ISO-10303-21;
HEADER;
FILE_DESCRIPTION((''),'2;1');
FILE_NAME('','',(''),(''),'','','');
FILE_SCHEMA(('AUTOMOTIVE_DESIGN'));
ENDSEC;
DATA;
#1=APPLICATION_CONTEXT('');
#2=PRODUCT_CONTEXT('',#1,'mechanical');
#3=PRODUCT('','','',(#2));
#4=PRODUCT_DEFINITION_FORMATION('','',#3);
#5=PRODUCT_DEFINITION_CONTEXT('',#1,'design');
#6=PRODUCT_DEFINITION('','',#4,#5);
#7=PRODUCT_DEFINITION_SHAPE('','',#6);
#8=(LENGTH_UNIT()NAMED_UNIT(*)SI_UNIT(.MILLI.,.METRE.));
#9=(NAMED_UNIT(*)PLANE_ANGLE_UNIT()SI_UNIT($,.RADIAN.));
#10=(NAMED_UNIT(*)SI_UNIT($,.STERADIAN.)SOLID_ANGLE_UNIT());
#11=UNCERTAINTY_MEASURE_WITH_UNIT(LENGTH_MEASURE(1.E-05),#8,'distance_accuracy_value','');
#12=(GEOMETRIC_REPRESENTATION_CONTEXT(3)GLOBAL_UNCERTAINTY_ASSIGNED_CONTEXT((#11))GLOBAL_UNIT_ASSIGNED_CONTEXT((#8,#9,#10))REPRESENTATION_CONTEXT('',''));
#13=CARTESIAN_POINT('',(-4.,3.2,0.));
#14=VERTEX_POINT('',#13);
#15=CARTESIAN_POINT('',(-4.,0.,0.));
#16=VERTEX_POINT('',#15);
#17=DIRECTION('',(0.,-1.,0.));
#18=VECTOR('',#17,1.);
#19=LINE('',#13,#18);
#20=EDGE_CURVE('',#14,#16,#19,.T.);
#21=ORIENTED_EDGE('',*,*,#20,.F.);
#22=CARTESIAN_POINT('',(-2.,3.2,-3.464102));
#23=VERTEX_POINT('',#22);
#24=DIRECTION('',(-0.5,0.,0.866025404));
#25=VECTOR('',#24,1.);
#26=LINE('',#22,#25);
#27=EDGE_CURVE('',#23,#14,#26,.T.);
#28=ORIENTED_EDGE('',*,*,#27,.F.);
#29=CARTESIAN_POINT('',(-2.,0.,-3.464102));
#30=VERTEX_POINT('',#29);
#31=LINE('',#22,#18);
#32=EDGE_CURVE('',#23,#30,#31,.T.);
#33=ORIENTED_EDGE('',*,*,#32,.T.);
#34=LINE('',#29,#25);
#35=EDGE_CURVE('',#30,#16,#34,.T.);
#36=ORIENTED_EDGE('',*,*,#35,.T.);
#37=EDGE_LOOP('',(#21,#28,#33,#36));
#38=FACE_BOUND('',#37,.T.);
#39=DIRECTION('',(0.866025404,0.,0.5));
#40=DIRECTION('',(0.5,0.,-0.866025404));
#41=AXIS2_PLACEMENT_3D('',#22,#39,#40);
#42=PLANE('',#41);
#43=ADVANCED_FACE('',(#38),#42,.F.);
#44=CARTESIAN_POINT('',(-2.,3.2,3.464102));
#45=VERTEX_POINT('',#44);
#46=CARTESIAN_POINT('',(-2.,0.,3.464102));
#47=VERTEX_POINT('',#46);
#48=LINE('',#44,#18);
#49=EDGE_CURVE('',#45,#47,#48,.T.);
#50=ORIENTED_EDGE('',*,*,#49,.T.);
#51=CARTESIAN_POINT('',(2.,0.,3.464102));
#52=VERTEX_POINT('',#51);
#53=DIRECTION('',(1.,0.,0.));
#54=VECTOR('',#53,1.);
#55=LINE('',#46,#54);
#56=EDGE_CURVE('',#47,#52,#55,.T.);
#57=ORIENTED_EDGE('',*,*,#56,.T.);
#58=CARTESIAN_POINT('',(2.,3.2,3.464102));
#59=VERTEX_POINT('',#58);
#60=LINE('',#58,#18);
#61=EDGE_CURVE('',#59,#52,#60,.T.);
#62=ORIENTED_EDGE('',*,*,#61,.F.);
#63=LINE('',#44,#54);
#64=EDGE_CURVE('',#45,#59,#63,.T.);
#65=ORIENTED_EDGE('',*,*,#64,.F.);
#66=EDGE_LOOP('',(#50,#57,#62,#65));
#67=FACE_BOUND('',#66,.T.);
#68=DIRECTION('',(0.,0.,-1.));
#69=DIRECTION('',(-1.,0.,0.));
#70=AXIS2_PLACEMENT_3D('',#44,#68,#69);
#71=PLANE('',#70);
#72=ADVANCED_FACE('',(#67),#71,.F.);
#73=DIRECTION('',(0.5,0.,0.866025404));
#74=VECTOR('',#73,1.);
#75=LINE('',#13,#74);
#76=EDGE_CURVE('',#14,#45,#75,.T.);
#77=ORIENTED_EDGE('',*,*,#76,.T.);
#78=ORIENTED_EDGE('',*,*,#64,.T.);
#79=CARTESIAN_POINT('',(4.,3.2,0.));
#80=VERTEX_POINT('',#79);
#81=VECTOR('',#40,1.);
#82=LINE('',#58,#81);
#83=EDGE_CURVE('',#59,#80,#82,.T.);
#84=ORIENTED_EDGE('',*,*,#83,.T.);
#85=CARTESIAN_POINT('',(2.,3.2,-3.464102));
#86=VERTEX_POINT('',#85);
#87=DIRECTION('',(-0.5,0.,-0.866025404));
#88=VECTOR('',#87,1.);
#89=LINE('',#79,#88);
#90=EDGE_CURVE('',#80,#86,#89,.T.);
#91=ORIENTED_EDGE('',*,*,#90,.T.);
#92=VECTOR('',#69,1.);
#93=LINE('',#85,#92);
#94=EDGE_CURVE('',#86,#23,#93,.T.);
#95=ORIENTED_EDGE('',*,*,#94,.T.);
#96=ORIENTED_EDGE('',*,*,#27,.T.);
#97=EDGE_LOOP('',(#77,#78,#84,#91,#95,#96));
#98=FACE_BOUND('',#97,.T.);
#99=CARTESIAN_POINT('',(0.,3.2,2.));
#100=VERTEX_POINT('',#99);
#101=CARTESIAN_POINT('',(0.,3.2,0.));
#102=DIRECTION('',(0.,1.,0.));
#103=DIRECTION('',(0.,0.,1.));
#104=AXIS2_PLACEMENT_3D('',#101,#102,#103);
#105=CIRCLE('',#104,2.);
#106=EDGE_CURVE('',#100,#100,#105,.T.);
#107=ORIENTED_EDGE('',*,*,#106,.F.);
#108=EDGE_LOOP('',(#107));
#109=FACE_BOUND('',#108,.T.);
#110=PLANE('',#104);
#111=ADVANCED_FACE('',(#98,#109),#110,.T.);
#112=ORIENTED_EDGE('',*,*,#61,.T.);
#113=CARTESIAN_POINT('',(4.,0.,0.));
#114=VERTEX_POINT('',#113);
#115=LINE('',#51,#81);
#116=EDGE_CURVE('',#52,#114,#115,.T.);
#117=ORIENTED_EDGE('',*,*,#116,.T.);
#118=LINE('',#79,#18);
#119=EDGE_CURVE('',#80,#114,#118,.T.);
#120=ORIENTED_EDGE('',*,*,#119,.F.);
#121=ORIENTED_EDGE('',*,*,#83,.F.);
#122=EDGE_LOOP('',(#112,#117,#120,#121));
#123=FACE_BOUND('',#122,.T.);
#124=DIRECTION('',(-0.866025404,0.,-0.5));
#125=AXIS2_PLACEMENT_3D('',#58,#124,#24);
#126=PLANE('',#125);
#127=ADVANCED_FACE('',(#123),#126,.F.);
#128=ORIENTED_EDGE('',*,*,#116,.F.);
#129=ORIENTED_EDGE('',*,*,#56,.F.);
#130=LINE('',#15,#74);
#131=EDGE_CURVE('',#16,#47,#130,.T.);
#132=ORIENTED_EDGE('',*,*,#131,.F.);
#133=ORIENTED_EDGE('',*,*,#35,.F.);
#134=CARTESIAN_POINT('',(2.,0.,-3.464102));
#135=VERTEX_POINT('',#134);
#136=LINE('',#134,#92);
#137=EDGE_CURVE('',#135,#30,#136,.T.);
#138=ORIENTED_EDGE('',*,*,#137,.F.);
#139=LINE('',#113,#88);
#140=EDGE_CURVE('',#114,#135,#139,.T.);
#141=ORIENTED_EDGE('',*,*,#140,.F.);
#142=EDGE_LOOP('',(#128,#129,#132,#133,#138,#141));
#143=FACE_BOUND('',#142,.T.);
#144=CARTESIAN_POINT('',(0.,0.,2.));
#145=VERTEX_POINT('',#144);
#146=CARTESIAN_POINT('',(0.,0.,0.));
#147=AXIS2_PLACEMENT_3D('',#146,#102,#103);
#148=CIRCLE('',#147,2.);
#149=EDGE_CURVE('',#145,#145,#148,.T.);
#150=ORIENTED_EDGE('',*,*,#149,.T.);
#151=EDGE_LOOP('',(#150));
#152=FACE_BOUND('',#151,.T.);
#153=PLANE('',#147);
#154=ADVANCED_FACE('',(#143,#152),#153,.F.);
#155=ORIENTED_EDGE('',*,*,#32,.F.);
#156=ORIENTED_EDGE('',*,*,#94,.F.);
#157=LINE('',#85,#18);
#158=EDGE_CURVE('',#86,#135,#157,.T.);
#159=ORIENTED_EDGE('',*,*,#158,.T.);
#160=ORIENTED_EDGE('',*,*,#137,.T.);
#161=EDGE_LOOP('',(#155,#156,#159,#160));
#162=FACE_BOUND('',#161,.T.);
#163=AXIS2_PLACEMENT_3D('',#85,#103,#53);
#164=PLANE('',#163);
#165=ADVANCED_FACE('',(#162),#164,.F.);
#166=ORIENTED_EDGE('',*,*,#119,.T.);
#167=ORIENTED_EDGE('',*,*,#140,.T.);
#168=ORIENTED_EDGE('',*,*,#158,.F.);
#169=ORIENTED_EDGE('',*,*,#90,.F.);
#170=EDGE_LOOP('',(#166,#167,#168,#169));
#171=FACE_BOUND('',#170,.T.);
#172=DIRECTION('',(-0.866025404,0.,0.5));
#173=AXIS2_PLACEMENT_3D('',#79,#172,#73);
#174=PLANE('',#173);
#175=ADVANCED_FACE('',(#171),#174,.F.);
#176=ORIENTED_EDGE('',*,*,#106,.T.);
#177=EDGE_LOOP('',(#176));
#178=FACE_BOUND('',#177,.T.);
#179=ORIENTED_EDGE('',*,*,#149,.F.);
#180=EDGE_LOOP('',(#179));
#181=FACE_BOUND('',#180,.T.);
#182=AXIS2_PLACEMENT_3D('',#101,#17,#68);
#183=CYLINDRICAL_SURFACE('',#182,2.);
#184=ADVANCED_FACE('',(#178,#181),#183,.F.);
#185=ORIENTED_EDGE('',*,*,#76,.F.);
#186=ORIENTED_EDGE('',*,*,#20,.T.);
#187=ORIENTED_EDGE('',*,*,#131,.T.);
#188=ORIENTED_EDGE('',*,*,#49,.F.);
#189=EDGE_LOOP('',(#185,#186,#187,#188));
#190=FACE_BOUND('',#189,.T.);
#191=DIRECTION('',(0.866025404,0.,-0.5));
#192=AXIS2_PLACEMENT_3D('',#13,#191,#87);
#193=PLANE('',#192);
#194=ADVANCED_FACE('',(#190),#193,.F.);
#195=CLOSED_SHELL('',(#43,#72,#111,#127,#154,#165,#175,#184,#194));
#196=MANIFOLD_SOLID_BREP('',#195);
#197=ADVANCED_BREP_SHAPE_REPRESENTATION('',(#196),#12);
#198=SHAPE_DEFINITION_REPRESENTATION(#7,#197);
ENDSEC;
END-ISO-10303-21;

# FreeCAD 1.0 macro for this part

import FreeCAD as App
import Part
import Sketcher
from FreeCAD import Vector
Q = App.Units.Quantity

doc = App.newDocument("Part")
body = doc.addObject("PartDesign::Body", "Body")

sketch1 = doc.addObject("Sketcher::SketchObject", "Sketch")
body.addObject(sketch1)
sketch1.AttachmentSupport = (doc.XZ_Plane, [""])
sketch1.MapMode = "FlatFace"
sketch1.addGeometry(Part.LineSegment(Vector(4, 0, 0), Vector(2, -3.464102, 0)), False)
sketch1.addGeometry(Part.LineSegment(Vector(2, -3.464102, 0), Vector(-2, -3.464102, 0)), False)
sketch1.addGeometry(Part.LineSegment(Vector(-2, -3.464102, 0), Vector(-4, 0, 0)), False)
sketch1.addGeometry(Part.LineSegment(Vector(-4, 0, 0), Vector(-2, 3.464102, 0)), False)
sketch1.addGeometry(Part.LineSegment(Vector(-2, 3.464102, 0), Vector(2, 3.464102, 0)), False)
sketch1.addGeometry(Part.LineSegment(Vector(2, 3.464102, 0), Vector(4, 0, 0)), False)
sketch1.addGeometry(Part.Circle(Vector(0, 0, 0), Vector(0, 0, 1), 2), False)
sketch1.addConstraint(Sketcher.Constraint("Coincident", 0, 2, 1, 1))
sketch1.addConstraint(Sketcher.Constraint("Coincident", 1, 2, 2, 1))
sketch1.addConstraint(Sketcher.Constraint("Coincident", 2, 2, 3, 1))
sketch1.addConstraint(Sketcher.Constraint("Coincident", 3, 2, 4, 1))
sketch1.addConstraint(Sketcher.Constraint("Coincident", 4, 2, 5, 1))
sketch1.addConstraint(Sketcher.Constraint("Coincident", 5, 2, 0, 1))
sketch1.addConstraint(Sketcher.Constraint("Horizontal", 1))
sketch1.addConstraint(Sketcher.Constraint("Horizontal", 4))
sketch1.addConstraint(Sketcher.Constraint("Coincident", 6, 3, -1, 1))
sketch1.addConstraint(Sketcher.Constraint("Symmetric", 0, 2, 3, 2, -1, 1))
sketch1.addConstraint(Sketcher.Constraint("Symmetric", 2, 2, 5, 2, -1, 1))
sketch1.addConstraint(Sketcher.Constraint("PointOnObject", 2, 2, -1))
sketch1.addConstraint(Sketcher.Constraint("Parallel", 2, 5))
sketch1.addConstraint(Sketcher.Constraint("Vertical", 1, 2, 3, 2))
sketch1.addConstraint(Sketcher.Constraint("Diameter", 6, Q("4 mm")))
sketch1.addConstraint(Sketcher.Constraint("DistanceX", 1, 2, 1, 1, Q("4 mm")))
sketch1.addConstraint(Sketcher.Constraint("Angle", 0, Q("-120 deg")))
sketch1.addConstraint(Sketcher.Constraint("Distance", 0, Q("4 mm")))
pad1 = doc.addObject("PartDesign::Pad", "Pad")
body.addObject(pad1)
pad1.Profile = sketch1
pad1.Length = 3.2
pad1.Reversed = True

doc.recompute()
